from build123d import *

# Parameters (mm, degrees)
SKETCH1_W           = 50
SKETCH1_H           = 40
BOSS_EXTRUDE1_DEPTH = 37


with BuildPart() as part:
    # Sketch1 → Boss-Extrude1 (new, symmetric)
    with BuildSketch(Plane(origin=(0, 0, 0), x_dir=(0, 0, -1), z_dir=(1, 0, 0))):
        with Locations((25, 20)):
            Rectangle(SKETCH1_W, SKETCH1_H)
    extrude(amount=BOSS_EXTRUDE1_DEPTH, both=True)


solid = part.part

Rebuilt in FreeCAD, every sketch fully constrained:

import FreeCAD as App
import Part
import Sketcher

V = App.Vector
Q = App.Units.Quantity

doc = App.newDocument("Part")
body = doc.addObject("PartDesign::Body", "Body")

# Sketch on YZ plane
sketch1 = body.newObject("Sketcher::SketchObject", "Sketch")
sketch1.AttachmentSupport = (doc.getObject("YZ_Plane"), [""])
sketch1.MapMode = "FlatFace"
sketch1.addGeometry(Part.LineSegment(V(40, 0, 0), V(0, 0, 0)), False)
sketch1.addGeometry(Part.LineSegment(V(0, 0, 0), V(0, -50, 0)), False)
sketch1.addGeometry(Part.LineSegment(V(0, -50, 0), V(40, -50, 0)), False)
sketch1.addGeometry(Part.LineSegment(V(40, -50, 0), V(40, 0, 0)), False)
sketch1.addConstraint(Sketcher.Constraint("Coincident", 0, 2, 1, 1))
sketch1.addConstraint(Sketcher.Constraint("Coincident", 1, 2, 2, 1))
sketch1.addConstraint(Sketcher.Constraint("Coincident", 2, 2, 3, 1))
sketch1.addConstraint(Sketcher.Constraint("Coincident", 3, 2, 0, 1))
sketch1.addConstraint(Sketcher.Constraint("Horizontal", 0))
sketch1.addConstraint(Sketcher.Constraint("Vertical", 1))
sketch1.addConstraint(Sketcher.Constraint("Horizontal", 2))
sketch1.addConstraint(Sketcher.Constraint("Vertical", 3))
sketch1.addConstraint(Sketcher.Constraint("Coincident", 0, 2, -1, 1))
sketch1.addConstraint(Sketcher.Constraint("DistanceX", 0, 2, 0, 1, Q("40 mm")))
sketch1.addConstraint(Sketcher.Constraint("DistanceY", 1, 2, 1, 1, Q("50 mm")))
pad1 = body.newObject("PartDesign::Pad", "Pad")
pad1.Profile = sketch1
pad1.Length = 74
pad1.Midplane = True

doc.recompute()
